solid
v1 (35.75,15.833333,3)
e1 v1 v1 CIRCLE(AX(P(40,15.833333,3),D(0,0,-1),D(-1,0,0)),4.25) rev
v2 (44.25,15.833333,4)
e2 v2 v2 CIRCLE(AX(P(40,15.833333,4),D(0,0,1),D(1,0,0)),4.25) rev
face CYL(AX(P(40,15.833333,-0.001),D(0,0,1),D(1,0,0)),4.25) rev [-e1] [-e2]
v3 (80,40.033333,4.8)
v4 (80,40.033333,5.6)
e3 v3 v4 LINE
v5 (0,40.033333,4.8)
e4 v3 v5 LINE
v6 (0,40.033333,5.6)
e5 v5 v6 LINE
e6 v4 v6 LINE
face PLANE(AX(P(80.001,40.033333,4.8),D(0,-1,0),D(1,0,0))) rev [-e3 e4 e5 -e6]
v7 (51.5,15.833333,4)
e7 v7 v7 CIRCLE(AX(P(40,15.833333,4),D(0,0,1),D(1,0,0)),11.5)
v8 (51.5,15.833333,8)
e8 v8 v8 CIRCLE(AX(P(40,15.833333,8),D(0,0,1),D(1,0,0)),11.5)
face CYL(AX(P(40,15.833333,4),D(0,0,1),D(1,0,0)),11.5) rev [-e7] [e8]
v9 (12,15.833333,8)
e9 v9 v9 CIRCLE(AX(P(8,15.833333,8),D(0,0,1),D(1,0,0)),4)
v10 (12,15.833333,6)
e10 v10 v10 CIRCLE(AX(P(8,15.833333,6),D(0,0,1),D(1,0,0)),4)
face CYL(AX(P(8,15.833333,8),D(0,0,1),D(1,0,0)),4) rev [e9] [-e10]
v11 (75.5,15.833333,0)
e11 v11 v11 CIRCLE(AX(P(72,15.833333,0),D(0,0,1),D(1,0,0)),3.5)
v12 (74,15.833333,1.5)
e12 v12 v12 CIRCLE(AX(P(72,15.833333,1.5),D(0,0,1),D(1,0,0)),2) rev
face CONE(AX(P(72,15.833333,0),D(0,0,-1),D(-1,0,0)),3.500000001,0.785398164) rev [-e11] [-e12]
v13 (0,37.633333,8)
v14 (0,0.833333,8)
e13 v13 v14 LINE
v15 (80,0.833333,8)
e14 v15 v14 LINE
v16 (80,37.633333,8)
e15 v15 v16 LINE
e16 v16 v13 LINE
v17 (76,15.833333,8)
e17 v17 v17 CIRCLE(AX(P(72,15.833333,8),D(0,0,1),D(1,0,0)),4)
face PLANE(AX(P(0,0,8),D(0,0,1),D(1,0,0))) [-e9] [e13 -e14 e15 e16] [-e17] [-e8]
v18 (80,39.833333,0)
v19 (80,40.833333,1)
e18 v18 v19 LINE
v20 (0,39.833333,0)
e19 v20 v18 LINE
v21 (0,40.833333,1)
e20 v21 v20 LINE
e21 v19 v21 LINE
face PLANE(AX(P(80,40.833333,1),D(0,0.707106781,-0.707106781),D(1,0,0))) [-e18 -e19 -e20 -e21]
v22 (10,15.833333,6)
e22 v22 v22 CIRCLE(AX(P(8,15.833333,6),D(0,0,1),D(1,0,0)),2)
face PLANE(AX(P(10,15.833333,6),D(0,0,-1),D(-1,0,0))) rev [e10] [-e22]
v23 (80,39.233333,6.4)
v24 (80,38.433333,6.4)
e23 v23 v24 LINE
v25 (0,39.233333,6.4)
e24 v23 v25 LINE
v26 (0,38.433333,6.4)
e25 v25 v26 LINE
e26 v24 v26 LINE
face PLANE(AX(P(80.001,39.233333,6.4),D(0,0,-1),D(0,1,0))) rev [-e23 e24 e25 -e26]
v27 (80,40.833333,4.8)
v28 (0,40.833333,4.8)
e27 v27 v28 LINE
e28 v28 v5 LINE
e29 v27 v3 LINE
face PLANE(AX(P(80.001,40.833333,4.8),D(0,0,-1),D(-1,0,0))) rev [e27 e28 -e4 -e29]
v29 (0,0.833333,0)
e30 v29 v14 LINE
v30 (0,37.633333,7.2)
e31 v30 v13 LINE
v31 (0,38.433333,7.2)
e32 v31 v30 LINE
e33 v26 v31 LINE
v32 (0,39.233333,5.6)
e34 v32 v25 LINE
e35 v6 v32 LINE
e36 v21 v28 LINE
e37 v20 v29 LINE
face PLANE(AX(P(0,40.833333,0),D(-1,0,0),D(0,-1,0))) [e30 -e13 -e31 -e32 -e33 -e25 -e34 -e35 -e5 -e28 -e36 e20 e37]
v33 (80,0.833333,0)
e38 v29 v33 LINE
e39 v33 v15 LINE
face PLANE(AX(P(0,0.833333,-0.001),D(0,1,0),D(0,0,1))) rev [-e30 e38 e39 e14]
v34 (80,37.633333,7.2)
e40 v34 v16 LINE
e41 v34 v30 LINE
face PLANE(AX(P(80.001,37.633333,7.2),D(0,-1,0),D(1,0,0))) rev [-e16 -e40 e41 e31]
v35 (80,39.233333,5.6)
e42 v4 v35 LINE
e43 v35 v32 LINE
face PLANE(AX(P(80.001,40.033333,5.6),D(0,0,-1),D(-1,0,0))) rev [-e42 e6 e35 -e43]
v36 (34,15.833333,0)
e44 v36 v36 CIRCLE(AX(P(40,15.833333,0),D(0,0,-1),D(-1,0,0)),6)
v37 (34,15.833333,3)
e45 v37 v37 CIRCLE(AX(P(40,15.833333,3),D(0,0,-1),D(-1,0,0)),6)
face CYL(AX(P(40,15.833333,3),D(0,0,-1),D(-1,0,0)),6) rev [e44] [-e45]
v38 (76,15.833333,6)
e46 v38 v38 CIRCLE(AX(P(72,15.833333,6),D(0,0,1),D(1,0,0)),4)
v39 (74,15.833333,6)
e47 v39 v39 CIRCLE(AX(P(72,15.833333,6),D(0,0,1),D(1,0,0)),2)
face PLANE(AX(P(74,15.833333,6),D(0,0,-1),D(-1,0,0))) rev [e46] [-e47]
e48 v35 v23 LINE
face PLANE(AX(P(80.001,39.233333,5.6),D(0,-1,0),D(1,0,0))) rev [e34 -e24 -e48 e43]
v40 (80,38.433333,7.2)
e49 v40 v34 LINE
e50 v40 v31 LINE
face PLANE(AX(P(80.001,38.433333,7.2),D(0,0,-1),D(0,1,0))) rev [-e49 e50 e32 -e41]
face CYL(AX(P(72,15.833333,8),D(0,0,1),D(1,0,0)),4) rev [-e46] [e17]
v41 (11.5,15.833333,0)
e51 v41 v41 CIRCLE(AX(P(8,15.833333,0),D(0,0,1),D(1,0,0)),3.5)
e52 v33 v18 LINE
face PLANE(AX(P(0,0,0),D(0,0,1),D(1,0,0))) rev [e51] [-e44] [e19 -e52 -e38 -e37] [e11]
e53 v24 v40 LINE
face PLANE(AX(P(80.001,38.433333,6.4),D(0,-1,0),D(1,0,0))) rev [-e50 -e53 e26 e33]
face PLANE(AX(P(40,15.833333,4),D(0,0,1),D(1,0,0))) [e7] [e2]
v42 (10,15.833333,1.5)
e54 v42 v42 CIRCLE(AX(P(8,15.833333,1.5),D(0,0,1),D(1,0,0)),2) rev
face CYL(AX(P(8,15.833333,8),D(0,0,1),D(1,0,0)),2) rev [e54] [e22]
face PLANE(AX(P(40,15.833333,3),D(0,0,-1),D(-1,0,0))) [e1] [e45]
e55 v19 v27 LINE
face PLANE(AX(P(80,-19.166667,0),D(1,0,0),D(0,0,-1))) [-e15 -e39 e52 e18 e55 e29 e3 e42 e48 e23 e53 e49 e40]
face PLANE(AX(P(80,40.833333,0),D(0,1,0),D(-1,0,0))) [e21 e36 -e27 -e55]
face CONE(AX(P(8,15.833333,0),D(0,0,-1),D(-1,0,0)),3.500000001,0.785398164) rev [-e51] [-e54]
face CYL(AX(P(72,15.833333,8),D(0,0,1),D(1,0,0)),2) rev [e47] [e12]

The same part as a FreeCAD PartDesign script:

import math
import FreeCAD as App
import Part
import Sketcher
Q = App.Units.Quantity


def edges_at(feature, points):
    """Names of the edges that pass closest to the given points."""
    edges = feature.Shape.Edges
    near = lambda p: min(range(len(edges)), key=lambda i: edges[i].distToShape(Part.Vertex(*p))[0])
    return sorted({f"Edge{near(p) + 1}" for p in points})


def add_polygon(sketch, points):
    """Adds a closed chain of lines whose ends are joined by coincident constraints."""
    first, n = sketch.GeometryCount, len(points)
    for a, b in zip(points, points[1:] + points[:1]):
        sketch.addGeometry(Part.LineSegment(App.Vector(*a, 0), App.Vector(*b, 0)), False)
    for i in range(n):
        sketch.addConstraint(Sketcher.Constraint("Coincident", first + i, 2, first + (i + 1) % n, 1))

doc = App.newDocument("Part")
body = doc.addObject("PartDesign::Body", "Body")

sketch1 = doc.addObject("Sketcher::SketchObject", "Sketch")
body.addObject(sketch1)
sketch1.AttachmentSupport = (doc.XY_Plane, [""])
sketch1.MapMode = "FlatFace"
sketch1.AttachmentOffset = App.Placement(App.Vector(0, 0, 8), App.Rotation())
add_polygon(sketch1, [(0, 41), (0, -19), (80, -19), (80, 41)])
sketch1.addConstraint([
    Sketcher.Constraint("Vertical", 0),
    Sketcher.Constraint("Horizontal", 1),
    Sketcher.Constraint("Vertical", 2),
    Sketcher.Constraint("Horizontal", 3),
    Sketcher.Constraint("PointOnObject", 0, 2, -2),
    Sketcher.Constraint("DistanceX", 1, 1, 1, 2, Q("80 mm")),
    Sketcher.Constraint("DistanceY", 0, 2, 0, 1, Q("60 mm")),
    Sketcher.Constraint("DistanceY", 0, 2, -1, 1, Q("19.166667 mm")),
])
pad1 = doc.addObject("PartDesign::Pad", "Pad")
body.addObject(pad1)
pad1.Profile = sketch1
pad1.Length = 8
pad1.Reversed = True

sketch2 = doc.addObject("Sketcher::SketchObject", "Sketch001")
body.addObject(sketch2)
sketch2.AttachmentSupport = (doc.XY_Plane, [""])
sketch2.MapMode = "FlatFace"
sketch2.AttachmentOffset = App.Placement(App.Vector(0, 0, 8), App.Rotation())
sketch2.addGeometry([
    Part.Circle(App.Vector(8, 15.8, 0), App.Vector(0, 0, 1), 2),
    Part.Circle(App.Vector(72, 15.8, 0), App.Vector(0, 0, 1), 2),
], False)
sketch2.addConstraint([
    Sketcher.Constraint("Equal", 0, 1),
    Sketcher.Constraint("Horizontal", 0, 3, 1, 3),
    Sketcher.Constraint("Diameter", 0, Q("4 mm")),
    Sketcher.Constraint("DistanceX", -1, 1, 0, 3, Q("8 mm")),
    Sketcher.Constraint("DistanceX", -1, 1, 1, 3, Q("72 mm")),
    Sketcher.Constraint("DistanceY", -1, 1, 0, 3, Q("15.833333 mm")),
])
doc.recompute()
hole = doc.addObject("PartDesign::Hole", "Hole")
body.addObject(hole)
hole.Profile = sketch2
hole.ThreadType = "None"
hole.Diameter = 4
hole.DepthType = "ThroughAll"
hole.HoleCutType = "Counterbore"
hole.HoleCutDiameter = 8
hole.HoleCutDepth = 2

sketch3 = doc.addObject("Sketcher::SketchObject", "Sketch002")
body.addObject(sketch3)
sketch3.AttachmentSupport = (doc.XY_Plane, [""])
sketch3.MapMode = "FlatFace"
sketch3.AttachmentOffset = App.Placement(App.Vector(0, 0, 8), App.Rotation())
add_polygon(sketch3, [(0, 38.8), (0, 36.8), (6, 36.8), (6, 24.8), (8, 24.8), (8, 36.8), (19, 36.8), (31, 24.8), (32.4, 26.2), (21.8, 36.8), (39, 36.8), (39, 24.8), (41, 24.8), (41, 36.8), (58.2, 36.8), (47.6, 26.2), (49, 24.8), (61, 36.8), (72, 36.8), (72, 24.8), (74, 24.8), (74, 36.8), (80, 36.8), (80, 38.8), (74, 38.8), (74, 40.8), (72, 40.8), (72, 38.8), (63, 38.8), (65, 40.8), (63.6, 42.2), (60.2, 38.8), (41, 38.8), (41, 40.8), (39, 40.8), (39, 38.8), (19.8, 38.8), (16.4, 42.2), (15, 40.8), (17, 38.8), (8, 38.8), (8, 40.8), (6, 40.8), (6, 38.8)])
sketch3.addConstraint([
    Sketcher.Constraint("Vertical", 0),
    Sketcher.Constraint("Horizontal", 1),
    Sketcher.Constraint("Vertical", 2),
    Sketcher.Constraint("Horizontal", 3),
    Sketcher.Constraint("Vertical", 4),
    Sketcher.Constraint("Horizontal", 5),
    Sketcher.Constraint("Horizontal", 9),
    Sketcher.Constraint("Vertical", 10),
    Sketcher.Constraint("Horizontal", 11),
    Sketcher.Constraint("Vertical", 12),
    Sketcher.Constraint("Horizontal", 13),
    Sketcher.Constraint("Horizontal", 17),
    Sketcher.Constraint("Vertical", 18),
    Sketcher.Constraint("Horizontal", 19),
    Sketcher.Constraint("Vertical", 20),
    Sketcher.Constraint("Horizontal", 21),
    Sketcher.Constraint("Vertical", 22),
    Sketcher.Constraint("Horizontal", 23),
    Sketcher.Constraint("Vertical", 24),
    Sketcher.Constraint("Horizontal", 25),
    Sketcher.Constraint("Vertical", 26),
    Sketcher.Constraint("Horizontal", 27),
    Sketcher.Constraint("Horizontal", 31),
    Sketcher.Constraint("Vertical", 32),
    Sketcher.Constraint("Horizontal", 33),
    Sketcher.Constraint("Vertical", 34),
    Sketcher.Constraint("Horizontal", 35),
    Sketcher.Constraint("Horizontal", 39),
    Sketcher.Constraint("Vertical", 40),
    Sketcher.Constraint("Horizontal", 41),
    Sketcher.Constraint("Vertical", 42),
    Sketcher.Constraint("Horizontal", 43),
    Sketcher.Constraint("PointOnObject", 0, 2, -2),
    Sketcher.Constraint("Perpendicular", 6, 7),
    Sketcher.Constraint("Perpendicular", 7, 8),
    Sketcher.Constraint("Perpendicular", 8, 14),
    Sketcher.Constraint("Perpendicular", 14, 15),
    Sketcher.Constraint("Perpendicular", 15, 16),
    Sketcher.Constraint("Parallel", 16, 28),
    Sketcher.Constraint("Perpendicular", 28, 29),
    Sketcher.Constraint("Perpendicular", 29, 30),
    Sketcher.Constraint("Perpendicular", 30, 36),
    Sketcher.Constraint("Perpendicular", 36, 37),
    Sketcher.Constraint("Perpendicular", 37, 38),
    Sketcher.Constraint("Horizontal", 1, 2, 4, 2),
    Sketcher.Constraint("Horizontal", 3, 2, 6, 2),
    Sketcher.Constraint("Horizontal", 5, 2, 8, 2),
    Sketcher.Constraint("Horizontal", 6, 2, 10, 2),
    Sketcher.Constraint("Horizontal", 9, 2, 12, 2),
    Sketcher.Constraint("Horizontal", 7, 2, 14, 2),
    Sketcher.Constraint("Horizontal", 11, 2, 15, 2),
    Sketcher.Constraint("Horizontal", 13, 2, 16, 2),
    Sketcher.Constraint("Horizontal", 15, 2, 18, 2),
    Sketcher.Constraint("Horizontal", 17, 2, 20, 2),
    Sketcher.Constraint("Horizontal", 23, 2, 26, 2),
    Sketcher.Constraint("Horizontal", 25, 2, 28, 2),
    Sketcher.Constraint("Horizontal", 27, 2, 30, 2),
    Sketcher.Constraint("Horizontal", 28, 2, 32, 2),
    Sketcher.Constraint("Horizontal", 31, 2, 34, 2),
    Sketcher.Constraint("Horizontal", 29, 2, 36, 2),
    Sketcher.Constraint("Horizontal", 33, 2, 37, 2),
    Sketcher.Constraint("Horizontal", 35, 2, 38, 2),
    Sketcher.Constraint("Horizontal", 37, 2, 40, 2),
    Sketcher.Constraint("Horizontal", 39, 2, 42, 2),
    Sketcher.Constraint("Vertical", 20, 2, 23, 2),
    Sketcher.Constraint("Vertical", 18, 2, 25, 2),
    Sketcher.Constraint("Vertical", 12, 2, 31, 2),
    Sketcher.Constraint("Vertical", 10, 2, 33, 2),
    Sketcher.Constraint("Vertical", 4, 2, 39, 2),
    Sketcher.Constraint("Vertical", 2, 2, 41, 2),
    Sketcher.Constraint("Equal", 3, 11),
    Sketcher.Constraint("Equal", 9, 13),
    Sketcher.Constraint("Equal", 5, 17),
    Sketcher.Constraint("Equal", 11, 19),
    Sketcher.Constraint("Equal", 1, 21),
    Sketcher.Constraint("Equal", 31, 35),
    Sketcher.Constraint("Equal", 41, 0),
    Sketcher.Constraint("Equal", 22, 24),
    Sketcher.Constraint("Equal", 8, 14),
    Sketcher.Constraint("Equal", 15, 29),
    Sketcher.Constraint("DistanceX", 1, 1, 1, 2, Q("6 mm")),
    Sketcher.Constraint("DistanceX", 3, 1, 3, 2, Q("2 mm")),
    Sketcher.Constraint("DistanceX", 5, 1, 5, 2, Q("11 mm")),
    Sketcher.Constraint("DistanceX", 27, 2, 27, 1, Q("9 mm")),
    Sketcher.Constraint("DistanceY", 2, 2, 2, 1, Q("12 mm")),
    Sketcher.Constraint("Distance", 7, Q("2 mm")),
    Sketcher.Constraint("DistanceX", -1, 1, 9, 2, Q("39 mm")),
    Sketcher.Constraint("DistanceY", -1, 1, 0, 2, Q("36.833333 mm")),
])
pocket1 = doc.addObject("PartDesign::Pocket", "Pocket")
body.addObject(pocket1)
pocket1.Profile = sketch3
pocket1.Length = 1

sketch4 = doc.addObject("Sketcher::SketchObject", "Sketch003")
body.addObject(sketch4)
sketch4.AttachmentSupport = (doc.XY_Plane, [""])
sketch4.MapMode = "FlatFace"
sketch4.AttachmentOffset = App.Placement(App.Vector(0, 0, 8), App.Rotation())
sketch4.addGeometry(Part.Circle(App.Vector(40, 15.8, 0), App.Vector(0, 0, 1), 4.2), False)
sketch4.addConstraint([
    Sketcher.Constraint("Diameter", 0, Q("8.5 mm")),
    Sketcher.Constraint("DistanceX", -1, 1, 0, 3, Q("40 mm")),
    Sketcher.Constraint("DistanceY", -1, 1, 0, 3, Q("15.833333 mm")),
])
pocket2 = doc.addObject("PartDesign::Pocket", "Pocket001")
body.addObject(pocket2)
pocket2.Profile = sketch4
pocket2.Type = "UpToFirst"

sketch5 = doc.addObject("Sketcher::SketchObject", "Sketch004")
body.addObject(sketch5)
sketch5.AttachmentSupport = (doc.XY_Plane, [""])
sketch5.MapMode = "FlatFace"
sketch5.AttachmentOffset = App.Placement(App.Vector(0, 0, 8), App.Rotation())
sketch5.addGeometry(Part.Circle(App.Vector(40, 16, 0), App.Vector(0, 0, 1), 12), False)
sketch5.addConstraint([
    Sketcher.Constraint("Diameter", 0, Q("23 mm")),
    Sketcher.Constraint("DistanceX", -1, 1, 0, 3, Q("40 mm")),
    Sketcher.Constraint("DistanceY", -1, 1, 0, 3, Q("15.833333 mm")),
])
pocket3 = doc.addObject("PartDesign::Pocket", "Pocket002")
body.addObject(pocket3)
pocket3.Profile = sketch5
pocket3.Length = 4

sketch6 = doc.addObject("Sketcher::SketchObject", "Sketch005")
body.addObject(sketch6)
sketch6.AttachmentSupport = (doc.XY_Plane, [""])
sketch6.MapMode = "FlatFace"
sketch6.addGeometry(Part.Circle(App.Vector(40, 16, 0), App.Vector(0, 0, 1), 6), False)
sketch6.addConstraint([
    Sketcher.Constraint("Diameter", 0, Q("12 mm")),
    Sketcher.Constraint("DistanceX", -1, 1, 0, 3, Q("40 mm")),
    Sketcher.Constraint("DistanceY", -1, 1, 0, 3, Q("15.833333 mm")),
])
pocket4 = doc.addObject("PartDesign::Pocket", "Pocket003")
body.addObject(pocket4)
pocket4.Profile = sketch6
pocket4.Length = 3
pocket4.Reversed = True
doc.recompute()

chamfer = doc.addObject("PartDesign::Chamfer", "Chamfer")
body.addObject(chamfer)
chamfer.Base = (pocket4, edges_at(pocket4, [(74, 15.833, 0), (10, 15.833, 0)]))
chamfer.ChamferType = "Two distances"
chamfer.Size = 1.5
chamfer.Size2 = 1.5
doc.recompute()

chamfer2 = doc.addObject("PartDesign::Chamfer", "Chamfer001")
body.addObject(chamfer2)
chamfer2.Base = (chamfer, edges_at(chamfer, [(40, 40.833, 0)]))
chamfer2.Size = 1

sketch7 = doc.addObject("Sketcher::SketchObject", "Sketch006")
body.addObject(sketch7)
sketch7.AttachmentSupport = (doc.XY_Plane, [""])
sketch7.MapMode = "FlatFace"
sketch7.AttachmentOffset = App.Placement(App.Vector(0, 0, 8), App.Rotation())
add_polygon(sketch7, [(0, -13), (0, -19), (80, -19), (80, -13)])
sketch7.addConstraint([
    Sketcher.Constraint("Vertical", 0),
    Sketcher.Constraint("Horizontal", 1),
    Sketcher.Constraint("Vertical", 2),
    Sketcher.Constraint("Horizontal", 3),
    Sketcher.Constraint("PointOnObject", 0, 2, -2),
    Sketcher.Constraint("DistanceX", 1, 1, 1, 2, Q("80 mm")),
    Sketcher.Constraint("DistanceY", 0, 2, 0, 1, Q("6 mm")),
    Sketcher.Constraint("DistanceY", 0, 2, -1, 1, Q("19.166667 mm")),
])
pocket5 = doc.addObject("PartDesign::Pocket", "Pocket004")
body.addObject(pocket5)
pocket5.Profile = sketch7
pocket5.Length = 1

sketch8 = doc.addObject("Sketcher::SketchObject", "Sketch007")
body.addObject(sketch8)
sketch8.AttachmentSupport = (doc.XY_Plane, [""])
sketch8.MapMode = "FlatFace"
sketch8.AttachmentOffset = App.Placement(App.Vector(0, 0, 7), App.Rotation())
add_polygon(sketch8, [(0, -15.2), (0, -19.2), (80, -19.2), (80, -15.2)])
sketch8.addConstraint([
    Sketcher.Constraint("Vertical", 0),
    Sketcher.Constraint("Horizontal", 1),
    Sketcher.Constraint("Vertical", 2),
    Sketcher.Constraint("Horizontal", 3),
    Sketcher.Constraint("PointOnObject", 0, 2, -2),
    Sketcher.Constraint("DistanceX", 1, 1, 1, 2, Q("80 mm")),
    Sketcher.Constraint("DistanceY", 0, 2, 0, 1, Q("4 mm")),
    Sketcher.Constraint("DistanceY", 0, 2, -1, 1, Q("19.166667 mm")),
])
pocket6 = doc.addObject("PartDesign::Pocket", "Pocket005")
body.addObject(pocket6)
pocket6.Profile = sketch8
pocket6.Length = 1

sketch9 = doc.addObject("Sketcher::SketchObject", "Sketch008")
body.addObject(sketch9)
sketch9.AttachmentSupport = (doc.XY_Plane, [""])
sketch9.MapMode = "FlatFace"
sketch9.AttachmentOffset = App.Placement(App.Vector(0, 0, 6), App.Rotation())
add_polygon(sketch9, [(0, -17.2), (0, -19.2), (80, -19.2), (80, -17.2)])
sketch9.addConstraint([
    Sketcher.Constraint("Vertical", 0),
    Sketcher.Constraint("Horizontal", 1),
    Sketcher.Constraint("Vertical", 2),
    Sketcher.Constraint("Horizontal", 3),
    Sketcher.Constraint("PointOnObject", 0, 2, -2),
    Sketcher.Constraint("DistanceX", 1, 1, 1, 2, Q("80 mm")),
    Sketcher.Constraint("DistanceY", 0, 2, 0, 1, Q("2 mm")),
    Sketcher.Constraint("DistanceY", 0, 2, -1, 1, Q("19.166667 mm")),
])
pocket7 = doc.addObject("PartDesign::Pocket", "Pocket006")
body.addObject(pocket7)
pocket7.Profile = sketch9
pocket7.Length = 1

sketch10 = doc.addObject("Sketcher::SketchObject", "Sketch009")
body.addObject(sketch10)
sketch10.AttachmentSupport = (doc.XY_Plane, [""])
sketch10.MapMode = "FlatFace"
sketch10.AttachmentOffset = App.Placement(App.Vector(0, 0, 8), App.Rotation())
sketch10.addGeometry([
    Part.Circle(App.Vector(7, 24.8, 0), App.Vector(0, 0, 1), 1),
    Part.Circle(App.Vector(31.7, 25.5, 0), App.Vector(0, 0, 1), 1),
    Part.Circle(App.Vector(48.3, 25.5, 0), App.Vector(0, 0, 1), 1),
    Part.Circle(App.Vector(73, 24.8, 0), App.Vector(0, 0, 1), 1),
], False)
sketch10.addConstraint([
    Sketcher.Constraint("Equal", 0, 1),
    Sketcher.Constraint("Equal", 1, 2),
    Sketcher.Constraint("Equal", 2, 3),
    Sketcher.Constraint("Horizontal", 1, 3, 2, 3),
    Sketcher.Constraint("Horizontal", 0, 3, 3, 3),
    Sketcher.Constraint("Diameter", 0, Q("2 mm")),
    Sketcher.Constraint("DistanceX", -1, 1, 0, 3, Q("7 mm")),
    Sketcher.Constraint("DistanceX", -1, 1, 3, 3, Q("73 mm")),
    Sketcher.Constraint("DistanceY", -1, 1, 1, 3, Q("25.54044 mm")),
    Sketcher.Constraint("DistanceY", -1, 1, 0, 3, Q("24.833333 mm")),
    Sketcher.Constraint("DistanceX", -1, 1, 1, 3, Q("31.707107 mm")),
    Sketcher.Constraint("DistanceX", -1, 1, 2, 3, Q("48.292893 mm")),
])
pocket8 = doc.addObject("PartDesign::Pocket", "Pocket007")
body.addObject(pocket8)
pocket8.Profile = sketch10
pocket8.Length = 1

sketch11 = doc.addObject("Sketcher::SketchObject", "Sketch010")
body.addObject(sketch11)
sketch11.AttachmentSupport = (doc.XY_Plane, [""])
sketch11.MapMode = "FlatFace"
sketch11.AttachmentOffset = App.Placement(App.Vector(0, 0, 8), App.Rotation())
add_polygon(sketch11, [(0, 1), (0, -19), (80, -19), (80, 1)])
sketch11.addConstraint([
    Sketcher.Constraint("Vertical", 0),
    Sketcher.Constraint("Horizontal", 1),
    Sketcher.Constraint("Vertical", 2),
    Sketcher.Constraint("Horizontal", 3),
    Sketcher.Constraint("PointOnObject", 0, 2, -2),
    Sketcher.Constraint("DistanceX", 1, 1, 1, 2, Q("80 mm")),
    Sketcher.Constraint("DistanceY", 0, 2, 0, 1, Q("20 mm")),
    Sketcher.Constraint("DistanceY", 0, 2, -1, 1, Q("19.166667 mm")),
])
pocket9 = doc.addObject("PartDesign::Pocket", "Pocket008")
body.addObject(pocket9)
pocket9.Profile = sketch11
pocket9.Type = "UpToFirst"

sketch12 = doc.addObject("Sketcher::SketchObject", "Sketch011")
body.addObject(sketch12)
sketch12.AttachmentSupport = (doc.XY_Plane, [""])
sketch12.MapMode = "FlatFace"
sketch12.AttachmentOffset = App.Placement(App.Vector(0, 0, 8), App.Rotation())
sketch12.addGeometry([
    Part.LineSegment(App.Vector(80, 41, 0), App.Vector(0, 41, 0)),
    Part.LineSegment(App.Vector(0, 41, 0), App.Vector(0, 23, 0)),
    Part.LineSegment(App.Vector(0, 23, 0), App.Vector(31, 23, 0)),
    Part.ArcOfCircle(Part.Circle(App.Vector(40, 16, 0), App.Vector(0, 0, 1), 11), math.radians(37), math.radians(143)),
    Part.LineSegment(App.Vector(49, 23, 0), App.Vector(80, 23, 0)),
    Part.LineSegment(App.Vector(80, 23, 0), App.Vector(80, 41, 0)),
], False)
sketch12.addConstraint([
    Sketcher.Constraint("Coincident", 0, 2, 1, 1),
    Sketcher.Constraint("Coincident", 1, 2, 2, 1),
    Sketcher.Constraint("Coincident", 2, 2, 3, 2),
    Sketcher.Constraint("Coincident", 3, 1, 4, 1),
    Sketcher.Constraint("Coincident", 4, 2, 5, 1),
    Sketcher.Constraint("Coincident", 5, 2, 0, 1),
    Sketcher.Constraint("Horizontal", 0),
    Sketcher.Constraint("Vertical", 1),
    Sketcher.Constraint("Horizontal", 2),
    Sketcher.Constraint("Horizontal", 4),
    Sketcher.Constraint("Vertical", 5),
    Sketcher.Constraint("PointOnObject", 0, 2, -2),
    Sketcher.Constraint("Horizontal", 2, 2, 3, 1),
    Sketcher.Constraint("Equal", 2, 4),
    Sketcher.Constraint("Radius", 3, Q("11.5 mm")),
    Sketcher.Constraint("DistanceX", 0, 2, 0, 1, Q("80 mm")),
    Sketcher.Constraint("DistanceY", 1, 2, 1, 1, Q("18 mm")),
    Sketcher.Constraint("DistanceY", 3, 3, 0, 2, Q("25 mm")),
    Sketcher.Constraint("DistanceY", -1, 1, 3, 3, Q("15.833333 mm")),
])
pad2 = doc.addObject("PartDesign::Pad", "Pad001")
body.addObject(pad2)
pad2.Profile = sketch12
pad2.Length = 3
pad2.Reversed = True

sketch13 = doc.addObject("Sketcher::SketchObject", "Sketch012")
body.addObject(sketch13)
sketch13.AttachmentSupport = (doc.YZ_Plane, [""])
sketch13.MapMode = "FlatFace"
add_polygon(sketch13, [(40.8, 4.8), (40, 4.8), (40, 5.6), (39.2, 5.6), (39.2, 6.4), (38.4, 6.4), (38.4, 7.2), (37.6, 7.2), (37.6, 8), (40.8, 8)])
sketch13.addConstraint([
    Sketcher.Constraint("Horizontal", 0),
    Sketcher.Constraint("Vertical", 1),
    Sketcher.Constraint("Horizontal", 2),
    Sketcher.Constraint("Vertical", 3),
    Sketcher.Constraint("Horizontal", 4),
    Sketcher.Constraint("Vertical", 5),
    Sketcher.Constraint("Horizontal", 6),
    Sketcher.Constraint("Vertical", 7),
    Sketcher.Constraint("Horizontal", 8),
    Sketcher.Constraint("Vertical", 9),
    Sketcher.Constraint("Equal", 0, 2),
    Sketcher.Constraint("Equal", 2, 4),
    Sketcher.Constraint("Equal", 4, 6),
    Sketcher.Constraint("Equal", 6, 1),
    Sketcher.Constraint("Equal", 1, 3),
    Sketcher.Constraint("Equal", 3, 5),
    Sketcher.Constraint("Equal", 5, 7),
    Sketcher.Constraint("DistanceX", 0, 2, 0, 1, Q("0.8 mm")),
    Sketcher.Constraint("DistanceY", -1, 1, 7, 2, Q("8 mm")),
    Sketcher.Constraint("DistanceX", -1, 1, 0, 2, Q("40.033333 mm")),
])
pocket10 = doc.addObject("PartDesign::Pocket", "Pocket009")
body.addObject(pocket10)
pocket10.Profile = sketch13
pocket10.Type = "UpToFirst"
pocket10.Reversed = True

doc.recompute()
